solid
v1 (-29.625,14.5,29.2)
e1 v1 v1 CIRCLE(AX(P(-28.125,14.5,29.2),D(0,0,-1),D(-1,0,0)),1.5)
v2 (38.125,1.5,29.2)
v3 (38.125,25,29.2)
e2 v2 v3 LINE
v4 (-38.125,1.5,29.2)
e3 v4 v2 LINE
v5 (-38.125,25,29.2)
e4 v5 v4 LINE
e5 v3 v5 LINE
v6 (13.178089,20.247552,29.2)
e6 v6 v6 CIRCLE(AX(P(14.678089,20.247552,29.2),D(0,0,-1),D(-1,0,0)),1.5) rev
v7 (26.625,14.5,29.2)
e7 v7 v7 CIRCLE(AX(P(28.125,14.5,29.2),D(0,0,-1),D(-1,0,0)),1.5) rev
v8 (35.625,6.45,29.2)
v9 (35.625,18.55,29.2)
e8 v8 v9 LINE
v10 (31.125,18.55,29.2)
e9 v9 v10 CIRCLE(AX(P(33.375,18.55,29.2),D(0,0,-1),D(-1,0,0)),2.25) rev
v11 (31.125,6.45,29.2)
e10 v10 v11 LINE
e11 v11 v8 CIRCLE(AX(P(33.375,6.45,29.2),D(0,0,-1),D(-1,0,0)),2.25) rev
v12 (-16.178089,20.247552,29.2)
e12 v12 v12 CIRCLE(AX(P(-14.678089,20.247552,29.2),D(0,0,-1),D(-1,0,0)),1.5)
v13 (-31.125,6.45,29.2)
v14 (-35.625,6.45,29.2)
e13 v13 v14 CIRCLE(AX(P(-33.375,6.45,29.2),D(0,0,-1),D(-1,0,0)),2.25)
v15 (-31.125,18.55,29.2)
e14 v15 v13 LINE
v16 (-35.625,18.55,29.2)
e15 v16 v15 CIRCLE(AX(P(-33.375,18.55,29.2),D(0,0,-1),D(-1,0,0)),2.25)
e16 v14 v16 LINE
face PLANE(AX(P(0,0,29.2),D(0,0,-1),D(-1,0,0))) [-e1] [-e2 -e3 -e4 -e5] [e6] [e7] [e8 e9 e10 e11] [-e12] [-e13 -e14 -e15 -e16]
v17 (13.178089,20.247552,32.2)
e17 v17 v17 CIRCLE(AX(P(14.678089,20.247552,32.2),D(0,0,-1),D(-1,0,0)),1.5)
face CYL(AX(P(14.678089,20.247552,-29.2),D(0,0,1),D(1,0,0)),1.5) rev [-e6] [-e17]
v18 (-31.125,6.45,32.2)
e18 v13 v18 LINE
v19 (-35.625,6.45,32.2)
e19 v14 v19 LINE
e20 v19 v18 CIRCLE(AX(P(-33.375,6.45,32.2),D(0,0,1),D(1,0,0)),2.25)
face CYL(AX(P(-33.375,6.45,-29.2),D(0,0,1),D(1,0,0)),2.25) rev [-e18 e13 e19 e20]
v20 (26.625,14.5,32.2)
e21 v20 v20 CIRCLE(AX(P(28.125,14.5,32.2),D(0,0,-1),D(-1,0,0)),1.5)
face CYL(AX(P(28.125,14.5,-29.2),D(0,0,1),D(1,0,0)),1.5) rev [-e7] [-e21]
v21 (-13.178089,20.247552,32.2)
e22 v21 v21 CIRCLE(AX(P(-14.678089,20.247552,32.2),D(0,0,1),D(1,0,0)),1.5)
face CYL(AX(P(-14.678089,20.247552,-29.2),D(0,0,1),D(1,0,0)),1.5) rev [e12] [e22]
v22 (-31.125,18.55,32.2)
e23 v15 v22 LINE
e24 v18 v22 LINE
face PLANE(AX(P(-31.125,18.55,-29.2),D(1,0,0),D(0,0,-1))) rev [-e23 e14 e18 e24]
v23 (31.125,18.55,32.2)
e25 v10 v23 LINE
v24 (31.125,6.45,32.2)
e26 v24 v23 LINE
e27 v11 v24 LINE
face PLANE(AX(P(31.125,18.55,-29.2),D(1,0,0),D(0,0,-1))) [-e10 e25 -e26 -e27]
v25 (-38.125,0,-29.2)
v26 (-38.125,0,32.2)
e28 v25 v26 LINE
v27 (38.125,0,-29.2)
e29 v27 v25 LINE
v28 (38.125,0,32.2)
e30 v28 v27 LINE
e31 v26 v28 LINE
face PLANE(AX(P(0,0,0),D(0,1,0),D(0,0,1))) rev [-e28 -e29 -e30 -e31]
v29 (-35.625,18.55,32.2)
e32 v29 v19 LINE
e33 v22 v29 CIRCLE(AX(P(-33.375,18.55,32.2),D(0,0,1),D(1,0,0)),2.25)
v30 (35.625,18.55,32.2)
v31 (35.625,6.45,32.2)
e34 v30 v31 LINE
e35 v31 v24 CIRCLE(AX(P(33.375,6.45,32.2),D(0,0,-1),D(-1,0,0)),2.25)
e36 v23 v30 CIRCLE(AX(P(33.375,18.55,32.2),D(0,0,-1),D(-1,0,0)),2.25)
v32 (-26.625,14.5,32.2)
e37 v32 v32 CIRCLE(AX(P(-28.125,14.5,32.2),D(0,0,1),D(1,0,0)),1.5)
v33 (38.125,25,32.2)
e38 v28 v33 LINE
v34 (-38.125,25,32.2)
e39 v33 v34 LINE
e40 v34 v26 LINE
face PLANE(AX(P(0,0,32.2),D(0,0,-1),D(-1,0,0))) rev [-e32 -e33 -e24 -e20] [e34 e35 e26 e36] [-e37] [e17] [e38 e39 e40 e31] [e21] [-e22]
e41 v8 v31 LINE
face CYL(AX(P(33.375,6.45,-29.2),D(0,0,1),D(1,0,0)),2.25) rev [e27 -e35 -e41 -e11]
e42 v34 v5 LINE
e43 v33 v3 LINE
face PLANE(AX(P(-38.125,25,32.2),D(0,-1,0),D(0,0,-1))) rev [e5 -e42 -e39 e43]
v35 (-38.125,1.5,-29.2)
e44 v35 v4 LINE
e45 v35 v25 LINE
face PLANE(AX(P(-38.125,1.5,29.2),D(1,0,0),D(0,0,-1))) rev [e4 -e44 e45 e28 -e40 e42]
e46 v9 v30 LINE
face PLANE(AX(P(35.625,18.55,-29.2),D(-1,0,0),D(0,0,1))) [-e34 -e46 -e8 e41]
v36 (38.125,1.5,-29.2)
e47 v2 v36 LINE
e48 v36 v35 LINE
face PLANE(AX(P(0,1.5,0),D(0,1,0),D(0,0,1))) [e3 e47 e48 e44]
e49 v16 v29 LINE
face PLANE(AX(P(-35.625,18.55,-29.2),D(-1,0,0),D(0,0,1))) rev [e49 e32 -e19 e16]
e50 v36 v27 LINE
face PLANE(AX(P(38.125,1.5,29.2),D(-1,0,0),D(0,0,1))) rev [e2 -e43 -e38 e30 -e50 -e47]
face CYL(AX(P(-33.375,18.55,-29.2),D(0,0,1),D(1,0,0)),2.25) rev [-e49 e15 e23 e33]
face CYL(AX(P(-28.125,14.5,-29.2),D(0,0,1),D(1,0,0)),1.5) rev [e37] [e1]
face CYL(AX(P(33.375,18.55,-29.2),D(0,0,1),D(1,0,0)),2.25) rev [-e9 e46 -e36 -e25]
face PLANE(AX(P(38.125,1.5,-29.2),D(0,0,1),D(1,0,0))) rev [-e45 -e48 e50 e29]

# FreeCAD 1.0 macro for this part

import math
import FreeCAD as App
import Part
import Sketcher

doc = App.newDocument("Part")
params = doc.addObject("Spreadsheet::Sheet", "Params")
for row, (alias, value) in enumerate([
    ("sketch1_height", "58.4 mm"),
    ("sketch1_width", "76.25 mm"),
    ("pad1_length", "1.5 mm"),
    ("sketch2_height", "25 mm"),
    ("sketch2_width", "76.25 mm"),
    ("pad2_length", "3 mm"),
    ("sketch3_diameter", "3 mm"),
    ("sketch3_radius", "2.25 mm"),
    ("sketch3_height", "12.1 mm"),
], start=1):
    params.set(f"A{row}", alias)
    params.set(f"B{row}", "=" + value)
    params.setAlias(f"B{row}", alias)

body = doc.addObject("PartDesign::Body", "Body")

sketch1 = doc.addObject("Sketcher::SketchObject", "Sketch")
body.addObject(sketch1)
sketch1.AttachmentSupport = (doc.XZ_Plane, [""])
sketch1.MapMode = "FlatFace"
sketch1.addGeometry(Part.LineSegment(App.Vector(-38, -29, 0), App.Vector(-38, 29, 0)), False)
sketch1.addGeometry(Part.LineSegment(App.Vector(-38, 29, 0), App.Vector(38, 29, 0)), False)
sketch1.addGeometry(Part.LineSegment(App.Vector(38, 29, 0), App.Vector(38, -29, 0)), False)
sketch1.addGeometry(Part.LineSegment(App.Vector(38, -29, 0), App.Vector(-38, -29, 0)), False)
sketch1.addConstraint(Sketcher.Constraint("Coincident", 0, 2, 1, 1))
sketch1.addConstraint(Sketcher.Constraint("Coincident", 1, 2, 2, 1))
sketch1.addConstraint(Sketcher.Constraint("Coincident", 2, 2, 3, 1))
sketch1.addConstraint(Sketcher.Constraint("Coincident", 3, 2, 0, 1))
sketch1.addConstraint(Sketcher.Constraint("Vertical", 0))
sketch1.addConstraint(Sketcher.Constraint("Horizontal", 1))
sketch1.addConstraint(Sketcher.Constraint("Vertical", 2))
sketch1.addConstraint(Sketcher.Constraint("Horizontal", 3))
sketch1.addConstraint(Sketcher.Constraint("Symmetric", 0, 2, 2, 2, -1, 1))
sketch1.addConstraint(Sketcher.Constraint("DistanceY", 0, 1, 0, 2, 58.4))
sketch1.addConstraint(Sketcher.Constraint("DistanceX", 1, 1, 1, 2, 76.25))
sketch1.setExpression("Constraints[9]", "Params.sketch1_height")
sketch1.setExpression("Constraints[10]", "Params.sketch1_width")
pad1 = doc.addObject("PartDesign::Pad", "Pad")
body.addObject(pad1)
pad1.Profile = sketch1
pad1.setExpression("Length", "Params.pad1_length")
pad1.Reversed = True

sketch2 = doc.addObject("Sketcher::SketchObject", "Sketch001")
body.addObject(sketch2)
sketch2.AttachmentSupport = (doc.XY_Plane, [""])
sketch2.MapMode = "FlatFace"
sketch2.AttachmentOffset = App.Placement(App.Vector(0, 0, 29.2), App.Rotation())
sketch2.addGeometry(Part.LineSegment(App.Vector(-38, 25, 0), App.Vector(-38, 0, 0)), False)
sketch2.addGeometry(Part.LineSegment(App.Vector(-38, 0, 0), App.Vector(38, 0, 0)), False)
sketch2.addGeometry(Part.LineSegment(App.Vector(38, 0, 0), App.Vector(38, 25, 0)), False)
sketch2.addGeometry(Part.LineSegment(App.Vector(38, 25, 0), App.Vector(-38, 25, 0)), False)
sketch2.addConstraint(Sketcher.Constraint("Coincident", 0, 2, 1, 1))
sketch2.addConstraint(Sketcher.Constraint("Coincident", 1, 2, 2, 1))
sketch2.addConstraint(Sketcher.Constraint("Coincident", 2, 2, 3, 1))
sketch2.addConstraint(Sketcher.Constraint("Coincident", 3, 2, 0, 1))
sketch2.addConstraint(Sketcher.Constraint("Vertical", 0))
sketch2.addConstraint(Sketcher.Constraint("Horizontal", 1))
sketch2.addConstraint(Sketcher.Constraint("Vertical", 2))
sketch2.addConstraint(Sketcher.Constraint("Horizontal", 3))
sketch2.addConstraint(Sketcher.Constraint("Symmetric", 0, 2, 1, 2, -1, 1))
sketch2.addConstraint(Sketcher.Constraint("DistanceY", 0, 2, 0, 1, 25.0))
sketch2.addConstraint(Sketcher.Constraint("DistanceX", 1, 1, 1, 2, 76.25))
sketch2.setExpression("Constraints[9]", "Params.sketch2_height")
sketch2.setExpression("Constraints[10]", "Params.sketch2_width")
pad2 = doc.addObject("PartDesign::Pad", "Pad001")
body.addObject(pad2)
pad2.Profile = sketch2
pad2.setExpression("Length", "Params.pad2_length")

sketch3 = doc.addObject("Sketcher::SketchObject", "Sketch002")
body.addObject(sketch3)
sketch3.AttachmentSupport = (doc.XY_Plane, [""])
sketch3.MapMode = "FlatFace"
sketch3.AttachmentOffset = App.Placement(App.Vector(0, 0, 32.2), App.Rotation())
sketch3.addGeometry(Part.Circle(App.Vector(-28.1, 14.5, 0), App.Vector(0, 0, 1), 1.5), False)
sketch3.addGeometry(Part.Circle(App.Vector(-14.7, 20.2, 0), App.Vector(0, 0, 1), 1.5), False)
sketch3.addGeometry(Part.LineSegment(App.Vector(-31.1, 6.5, 0), App.Vector(-31.1, 18.6, 0)), False)
sketch3.addGeometry(Part.ArcOfCircle(Part.Circle(App.Vector(-33.4, 18.6, 0), App.Vector(0, 0, 1), 2.2), math.radians(0), math.radians(180)), False)
sketch3.addGeometry(Part.LineSegment(App.Vector(-35.6, 18.6, 0), App.Vector(-35.6, 6.5, 0)), False)
sketch3.addGeometry(Part.ArcOfCircle(Part.Circle(App.Vector(-33.4, 6.5, 0), App.Vector(0, 0, 1), 2.2), math.radians(180), math.radians(360)), False)
sketch3.addConstraint(Sketcher.Constraint("Tangent", 2, 2, 3, 1))
sketch3.addConstraint(Sketcher.Constraint("Tangent", 3, 2, 4, 1))
sketch3.addConstraint(Sketcher.Constraint("Tangent", 4, 2, 5, 1))
sketch3.addConstraint(Sketcher.Constraint("Tangent", 5, 2, 2, 1))
sketch3.addConstraint(Sketcher.Constraint("Vertical", 2))
sketch3.addConstraint(Sketcher.Constraint("Vertical", 4))
sketch3.addConstraint(Sketcher.Constraint("Equal", 0, 1))
sketch3.addConstraint(Sketcher.Constraint("Diameter", 0, 3.0))
sketch3.addConstraint(Sketcher.Constraint("Radius", 3, 2.25))
sketch3.addConstraint(Sketcher.Constraint("DistanceY", 2, 1, 2, 2, 12.1))
sketch3.addConstraint(Sketcher.Constraint("DistanceX", 2, 2, 0, 3, 3.0))
sketch3.addConstraint(Sketcher.Constraint("DistanceY", -1, 1, 0, 3, 14.5))
sketch3.addConstraint(Sketcher.Constraint("DistanceY", -1, 1, 3, 3, 18.55))
sketch3.addConstraint(Sketcher.Constraint("DistanceX", 0, 3, -1, 1, 28.125))
sketch3.addConstraint(Sketcher.Constraint("DistanceX", 1, 3, -1, 1, 14.678089))
sketch3.addConstraint(Sketcher.Constraint("DistanceY", -1, 1, 1, 3, 20.247552))
sketch3.setExpression("Constraints[7]", "Params.sketch3_diameter")
sketch3.setExpression("Constraints[8]", "Params.sketch3_radius")
sketch3.setExpression("Constraints[9]", "Params.sketch3_height")
pocket1 = doc.addObject("PartDesign::Pocket", "Pocket")
body.addObject(pocket1)
pocket1.Profile = sketch3
pocket1.Type = "ThroughAll"
doc.recompute()

mirrored = doc.addObject("PartDesign::Mirrored", "Mirrored")
body.addObject(mirrored)
mirrored.Originals = [pocket1]
mirrored.MirrorPlane = (doc.YZ_Plane, [""])
body.Tip = mirrored

doc.recompute()
